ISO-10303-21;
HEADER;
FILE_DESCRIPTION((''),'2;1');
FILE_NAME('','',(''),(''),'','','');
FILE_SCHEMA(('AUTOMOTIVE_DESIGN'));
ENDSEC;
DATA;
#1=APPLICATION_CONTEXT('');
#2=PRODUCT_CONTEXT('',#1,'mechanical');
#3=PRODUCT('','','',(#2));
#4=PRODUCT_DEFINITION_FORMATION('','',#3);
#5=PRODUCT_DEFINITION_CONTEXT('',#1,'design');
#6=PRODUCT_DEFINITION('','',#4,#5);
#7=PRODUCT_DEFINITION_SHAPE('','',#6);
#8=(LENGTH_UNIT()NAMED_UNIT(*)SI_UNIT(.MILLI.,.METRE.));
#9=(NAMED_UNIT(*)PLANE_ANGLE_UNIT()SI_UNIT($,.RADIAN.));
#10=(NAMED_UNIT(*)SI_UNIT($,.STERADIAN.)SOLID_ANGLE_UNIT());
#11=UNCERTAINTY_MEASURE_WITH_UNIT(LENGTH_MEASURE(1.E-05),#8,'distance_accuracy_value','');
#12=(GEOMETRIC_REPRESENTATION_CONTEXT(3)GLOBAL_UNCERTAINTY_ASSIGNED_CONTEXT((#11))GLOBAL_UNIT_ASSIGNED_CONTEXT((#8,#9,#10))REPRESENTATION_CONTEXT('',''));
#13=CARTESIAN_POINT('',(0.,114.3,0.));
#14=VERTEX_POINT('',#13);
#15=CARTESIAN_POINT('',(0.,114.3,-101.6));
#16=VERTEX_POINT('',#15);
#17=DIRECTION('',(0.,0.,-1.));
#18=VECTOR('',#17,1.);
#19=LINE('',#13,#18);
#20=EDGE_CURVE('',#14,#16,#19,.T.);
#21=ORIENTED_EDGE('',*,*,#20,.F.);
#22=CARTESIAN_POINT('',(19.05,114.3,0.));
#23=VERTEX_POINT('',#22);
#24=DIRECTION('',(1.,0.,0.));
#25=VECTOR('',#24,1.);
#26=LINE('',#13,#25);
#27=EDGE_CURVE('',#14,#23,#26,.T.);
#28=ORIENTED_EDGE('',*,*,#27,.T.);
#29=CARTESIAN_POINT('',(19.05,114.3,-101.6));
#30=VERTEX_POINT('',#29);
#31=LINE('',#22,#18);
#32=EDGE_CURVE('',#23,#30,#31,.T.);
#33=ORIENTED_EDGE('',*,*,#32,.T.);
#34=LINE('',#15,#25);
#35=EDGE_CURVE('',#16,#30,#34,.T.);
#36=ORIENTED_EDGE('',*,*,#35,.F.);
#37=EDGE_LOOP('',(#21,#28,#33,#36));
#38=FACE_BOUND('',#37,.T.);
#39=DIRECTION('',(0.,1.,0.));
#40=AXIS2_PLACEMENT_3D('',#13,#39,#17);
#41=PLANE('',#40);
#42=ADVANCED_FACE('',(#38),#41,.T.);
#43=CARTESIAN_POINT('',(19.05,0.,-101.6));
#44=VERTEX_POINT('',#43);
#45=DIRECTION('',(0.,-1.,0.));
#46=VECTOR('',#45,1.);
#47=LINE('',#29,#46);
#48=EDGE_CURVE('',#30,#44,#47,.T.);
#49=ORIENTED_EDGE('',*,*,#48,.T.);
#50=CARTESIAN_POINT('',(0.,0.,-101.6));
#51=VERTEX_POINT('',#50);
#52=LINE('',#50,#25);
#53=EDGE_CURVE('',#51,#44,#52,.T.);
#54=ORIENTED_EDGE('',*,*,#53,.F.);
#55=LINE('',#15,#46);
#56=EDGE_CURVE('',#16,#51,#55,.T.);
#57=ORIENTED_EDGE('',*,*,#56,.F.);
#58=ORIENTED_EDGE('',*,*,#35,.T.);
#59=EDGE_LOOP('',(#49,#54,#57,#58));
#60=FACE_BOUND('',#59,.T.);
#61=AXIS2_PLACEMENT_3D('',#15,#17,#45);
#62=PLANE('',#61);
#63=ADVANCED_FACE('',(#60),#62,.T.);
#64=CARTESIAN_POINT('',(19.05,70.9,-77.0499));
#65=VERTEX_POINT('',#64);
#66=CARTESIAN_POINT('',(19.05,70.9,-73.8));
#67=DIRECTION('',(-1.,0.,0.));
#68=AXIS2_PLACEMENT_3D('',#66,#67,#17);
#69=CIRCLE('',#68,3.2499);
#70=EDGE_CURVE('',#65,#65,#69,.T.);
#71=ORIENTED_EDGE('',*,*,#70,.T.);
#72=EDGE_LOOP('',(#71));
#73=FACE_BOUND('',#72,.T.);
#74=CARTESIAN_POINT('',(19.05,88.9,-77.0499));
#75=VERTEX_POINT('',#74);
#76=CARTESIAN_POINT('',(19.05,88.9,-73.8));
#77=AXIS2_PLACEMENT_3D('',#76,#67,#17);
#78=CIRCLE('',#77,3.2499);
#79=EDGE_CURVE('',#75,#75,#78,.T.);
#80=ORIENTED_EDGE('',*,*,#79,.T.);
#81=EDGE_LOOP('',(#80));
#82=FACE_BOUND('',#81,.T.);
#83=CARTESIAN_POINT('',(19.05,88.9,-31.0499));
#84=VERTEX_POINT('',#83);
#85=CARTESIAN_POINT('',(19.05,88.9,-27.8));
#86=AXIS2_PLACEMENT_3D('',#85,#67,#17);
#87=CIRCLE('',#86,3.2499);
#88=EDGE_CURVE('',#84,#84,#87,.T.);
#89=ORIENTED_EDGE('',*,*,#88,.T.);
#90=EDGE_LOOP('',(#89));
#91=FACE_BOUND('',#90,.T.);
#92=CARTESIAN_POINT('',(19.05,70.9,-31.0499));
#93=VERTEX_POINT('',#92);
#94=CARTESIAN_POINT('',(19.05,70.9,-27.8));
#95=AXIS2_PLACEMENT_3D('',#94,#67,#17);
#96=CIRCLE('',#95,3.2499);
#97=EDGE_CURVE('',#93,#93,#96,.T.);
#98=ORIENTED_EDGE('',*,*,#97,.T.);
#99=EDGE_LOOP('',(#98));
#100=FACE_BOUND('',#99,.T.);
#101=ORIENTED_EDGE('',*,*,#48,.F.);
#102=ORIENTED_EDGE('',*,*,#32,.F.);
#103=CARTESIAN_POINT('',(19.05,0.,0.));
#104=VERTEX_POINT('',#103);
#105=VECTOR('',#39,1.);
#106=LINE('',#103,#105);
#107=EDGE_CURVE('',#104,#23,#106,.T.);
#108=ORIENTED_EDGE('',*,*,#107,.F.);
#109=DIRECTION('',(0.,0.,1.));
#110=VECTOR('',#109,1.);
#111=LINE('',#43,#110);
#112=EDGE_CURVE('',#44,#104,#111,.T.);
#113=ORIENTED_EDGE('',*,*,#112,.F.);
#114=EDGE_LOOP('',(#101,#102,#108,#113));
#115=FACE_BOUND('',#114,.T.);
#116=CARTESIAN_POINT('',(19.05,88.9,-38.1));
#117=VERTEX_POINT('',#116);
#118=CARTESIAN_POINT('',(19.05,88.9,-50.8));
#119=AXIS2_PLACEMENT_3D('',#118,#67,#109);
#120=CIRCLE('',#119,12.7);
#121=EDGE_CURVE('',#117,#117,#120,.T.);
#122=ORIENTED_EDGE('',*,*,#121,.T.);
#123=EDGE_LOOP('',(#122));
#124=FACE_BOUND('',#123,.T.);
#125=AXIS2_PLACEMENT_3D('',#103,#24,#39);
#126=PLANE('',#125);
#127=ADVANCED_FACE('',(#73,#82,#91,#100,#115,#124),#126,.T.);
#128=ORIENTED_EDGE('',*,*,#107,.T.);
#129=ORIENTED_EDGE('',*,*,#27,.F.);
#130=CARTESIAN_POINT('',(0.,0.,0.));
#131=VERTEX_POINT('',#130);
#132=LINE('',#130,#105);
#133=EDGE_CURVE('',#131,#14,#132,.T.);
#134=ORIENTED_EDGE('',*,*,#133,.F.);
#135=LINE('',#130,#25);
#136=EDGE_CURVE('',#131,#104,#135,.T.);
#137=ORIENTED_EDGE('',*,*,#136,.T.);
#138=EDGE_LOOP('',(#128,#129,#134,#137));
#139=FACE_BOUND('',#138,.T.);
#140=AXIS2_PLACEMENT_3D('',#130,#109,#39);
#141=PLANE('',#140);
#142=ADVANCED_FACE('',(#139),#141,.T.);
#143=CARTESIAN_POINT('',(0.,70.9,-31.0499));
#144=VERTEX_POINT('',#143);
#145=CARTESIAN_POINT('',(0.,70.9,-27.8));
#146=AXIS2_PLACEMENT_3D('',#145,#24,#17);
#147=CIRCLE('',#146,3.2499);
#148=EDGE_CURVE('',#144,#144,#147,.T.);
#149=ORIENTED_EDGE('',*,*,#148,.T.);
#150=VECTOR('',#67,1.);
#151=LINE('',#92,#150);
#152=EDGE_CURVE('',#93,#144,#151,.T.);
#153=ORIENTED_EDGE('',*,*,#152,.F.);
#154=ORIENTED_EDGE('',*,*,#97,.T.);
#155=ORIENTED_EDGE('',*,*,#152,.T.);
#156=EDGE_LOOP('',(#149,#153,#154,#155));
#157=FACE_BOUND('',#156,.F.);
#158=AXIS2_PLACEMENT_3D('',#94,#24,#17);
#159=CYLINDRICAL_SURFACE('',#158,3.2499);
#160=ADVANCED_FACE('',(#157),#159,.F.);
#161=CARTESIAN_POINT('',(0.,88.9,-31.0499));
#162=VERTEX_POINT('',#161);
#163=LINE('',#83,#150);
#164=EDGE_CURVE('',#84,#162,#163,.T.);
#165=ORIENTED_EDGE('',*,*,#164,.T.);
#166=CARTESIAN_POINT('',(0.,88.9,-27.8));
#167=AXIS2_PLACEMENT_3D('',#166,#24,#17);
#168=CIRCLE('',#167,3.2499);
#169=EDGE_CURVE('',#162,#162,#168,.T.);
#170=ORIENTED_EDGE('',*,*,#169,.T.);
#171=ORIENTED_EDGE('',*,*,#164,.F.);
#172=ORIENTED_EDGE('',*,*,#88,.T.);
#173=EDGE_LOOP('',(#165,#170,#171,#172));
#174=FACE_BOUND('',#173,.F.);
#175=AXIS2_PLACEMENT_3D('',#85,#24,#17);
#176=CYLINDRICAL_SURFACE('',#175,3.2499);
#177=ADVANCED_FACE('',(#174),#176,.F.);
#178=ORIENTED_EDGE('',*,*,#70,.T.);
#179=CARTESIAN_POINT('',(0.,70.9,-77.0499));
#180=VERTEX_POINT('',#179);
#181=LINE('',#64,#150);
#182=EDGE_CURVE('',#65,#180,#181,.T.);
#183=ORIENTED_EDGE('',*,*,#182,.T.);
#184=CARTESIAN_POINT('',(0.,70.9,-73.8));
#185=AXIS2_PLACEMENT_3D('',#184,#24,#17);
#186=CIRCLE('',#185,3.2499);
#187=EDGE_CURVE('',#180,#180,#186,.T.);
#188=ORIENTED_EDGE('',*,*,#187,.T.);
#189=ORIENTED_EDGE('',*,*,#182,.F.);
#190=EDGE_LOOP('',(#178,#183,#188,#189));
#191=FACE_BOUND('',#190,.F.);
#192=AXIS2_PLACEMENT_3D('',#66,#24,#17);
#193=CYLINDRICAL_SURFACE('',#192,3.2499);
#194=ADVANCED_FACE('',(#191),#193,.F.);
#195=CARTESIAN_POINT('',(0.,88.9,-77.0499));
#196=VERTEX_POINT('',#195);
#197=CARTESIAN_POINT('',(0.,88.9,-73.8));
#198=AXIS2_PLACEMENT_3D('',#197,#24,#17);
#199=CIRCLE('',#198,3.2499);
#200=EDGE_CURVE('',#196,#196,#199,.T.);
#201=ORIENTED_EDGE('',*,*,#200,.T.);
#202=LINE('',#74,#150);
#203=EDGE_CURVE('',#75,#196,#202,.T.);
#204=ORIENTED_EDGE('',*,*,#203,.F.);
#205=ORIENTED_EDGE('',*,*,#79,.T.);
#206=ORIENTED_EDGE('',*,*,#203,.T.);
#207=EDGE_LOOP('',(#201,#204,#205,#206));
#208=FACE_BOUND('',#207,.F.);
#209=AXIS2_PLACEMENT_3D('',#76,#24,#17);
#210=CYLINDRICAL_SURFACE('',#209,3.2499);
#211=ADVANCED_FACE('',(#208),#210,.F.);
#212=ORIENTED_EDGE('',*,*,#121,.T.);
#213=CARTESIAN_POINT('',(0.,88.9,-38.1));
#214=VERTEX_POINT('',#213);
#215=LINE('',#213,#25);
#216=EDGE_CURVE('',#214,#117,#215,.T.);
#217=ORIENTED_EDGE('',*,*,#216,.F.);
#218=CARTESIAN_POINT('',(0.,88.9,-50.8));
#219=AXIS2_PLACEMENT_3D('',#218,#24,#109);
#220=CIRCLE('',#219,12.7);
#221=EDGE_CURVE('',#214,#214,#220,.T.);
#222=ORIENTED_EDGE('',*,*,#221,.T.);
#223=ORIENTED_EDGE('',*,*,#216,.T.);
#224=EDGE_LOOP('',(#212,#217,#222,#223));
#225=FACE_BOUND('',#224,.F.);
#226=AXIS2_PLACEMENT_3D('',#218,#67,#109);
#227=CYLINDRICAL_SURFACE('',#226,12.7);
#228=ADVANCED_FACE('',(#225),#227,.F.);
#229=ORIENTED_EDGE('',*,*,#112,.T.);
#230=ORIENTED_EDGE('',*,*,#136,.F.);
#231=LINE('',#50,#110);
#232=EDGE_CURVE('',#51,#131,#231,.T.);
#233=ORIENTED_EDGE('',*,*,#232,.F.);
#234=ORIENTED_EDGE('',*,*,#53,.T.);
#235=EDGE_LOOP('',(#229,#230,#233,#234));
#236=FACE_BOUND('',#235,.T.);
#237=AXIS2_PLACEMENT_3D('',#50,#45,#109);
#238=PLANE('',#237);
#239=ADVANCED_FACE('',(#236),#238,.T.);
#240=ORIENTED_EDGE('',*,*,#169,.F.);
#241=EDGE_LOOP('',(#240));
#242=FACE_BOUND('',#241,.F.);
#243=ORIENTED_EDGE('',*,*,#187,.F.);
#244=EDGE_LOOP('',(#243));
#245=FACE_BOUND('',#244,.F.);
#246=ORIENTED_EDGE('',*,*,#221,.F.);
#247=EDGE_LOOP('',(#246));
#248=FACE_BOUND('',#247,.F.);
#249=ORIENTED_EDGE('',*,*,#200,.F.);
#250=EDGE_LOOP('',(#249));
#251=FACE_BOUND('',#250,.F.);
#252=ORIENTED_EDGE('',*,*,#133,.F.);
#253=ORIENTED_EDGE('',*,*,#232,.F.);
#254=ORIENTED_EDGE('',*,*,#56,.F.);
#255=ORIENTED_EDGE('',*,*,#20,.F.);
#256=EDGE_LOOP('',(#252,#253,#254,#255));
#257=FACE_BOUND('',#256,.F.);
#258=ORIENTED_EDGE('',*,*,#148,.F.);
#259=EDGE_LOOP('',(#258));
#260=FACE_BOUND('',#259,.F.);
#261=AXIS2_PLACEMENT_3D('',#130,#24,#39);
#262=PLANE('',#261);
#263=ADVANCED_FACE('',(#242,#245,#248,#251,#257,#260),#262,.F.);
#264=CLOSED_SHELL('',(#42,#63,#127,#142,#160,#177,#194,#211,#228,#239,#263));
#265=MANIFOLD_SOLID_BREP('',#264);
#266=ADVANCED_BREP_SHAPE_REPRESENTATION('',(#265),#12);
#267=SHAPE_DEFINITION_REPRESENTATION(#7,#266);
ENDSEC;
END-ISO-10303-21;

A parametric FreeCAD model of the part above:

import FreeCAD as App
import Part
import Sketcher
Q = App.Units.Quantity


def add_polygon(sketch, points):
    """Adds a closed chain of lines whose ends are joined by coincident constraints."""
    first, n = sketch.GeometryCount, len(points)
    for a, b in zip(points, points[1:] + points[:1]):
        sketch.addGeometry(Part.LineSegment(App.Vector(*a, 0), App.Vector(*b, 0)), False)
    for i in range(n):
        sketch.addConstraint(Sketcher.Constraint("Coincident", first + i, 2, first + (i + 1) % n, 1))

doc = App.newDocument("Part")
body = doc.addObject("PartDesign::Body", "Body")

# Sketch on YZ plane
sketch1 = doc.addObject("Sketcher::SketchObject", "Sketch")
body.addObject(sketch1)
sketch1.AttachmentSupport = (doc.YZ_Plane, [""])
sketch1.MapMode = "FlatFace"
add_polygon(sketch1, [(114, 0), (0, 0), (0, -102), (114, -102)])  # lines 0-3
sketch1.addConstraint([
    Sketcher.Constraint("Horizontal", 0),
    Sketcher.Constraint("Vertical", 1),
    Sketcher.Constraint("Horizontal", 2),
    Sketcher.Constraint("Vertical", 3),
    Sketcher.Constraint("Coincident", 0, 2, -1, 1),
    Sketcher.Constraint("DistanceY", 1, 2, 1, 1, Q("4 in")),
    Sketcher.Constraint("DistanceX", 0, 2, 0, 1, Q("4.5 in")),
])
pad1 = doc.addObject("PartDesign::Pad", "Pad")
body.addObject(pad1)
pad1.Profile = sketch1
pad1.Length = Q("0.75 in")

# Sketch on YZ plane
sketch2 = doc.addObject("Sketcher::SketchObject", "Sketch001")
body.addObject(sketch2)
sketch2.AttachmentSupport = (doc.YZ_Plane, [""])
sketch2.MapMode = "FlatFace"
sketch2.AttachmentOffset = App.Placement(App.Vector(0, 0, 0.75 * 25.4), App.Rotation())
sketch2.addGeometry([
    Part.Circle(App.Vector(88.9, -27.8, 0), App.Vector(0, 0, 1), 3.2),
    Part.Circle(App.Vector(88.9, -73.8, 0), App.Vector(0, 0, 1), 3.2),
    Part.Circle(App.Vector(70.9, -27.8, 0), App.Vector(0, 0, 1), 3.2),
    Part.Circle(App.Vector(70.9, -73.8, 0), App.Vector(0, 0, 1), 3.2),
], False)
sketch2.addConstraint([
    Sketcher.Constraint("Equal", 0, 1),
    Sketcher.Constraint("Equal", 1, 2),
    Sketcher.Constraint("Equal", 2, 3),
    Sketcher.Constraint("Horizontal", 0, 3, 2, 3),
    Sketcher.Constraint("Horizontal", 1, 3, 3, 3),
    Sketcher.Constraint("Vertical", 0, 3, 1, 3),
    Sketcher.Constraint("Vertical", 2, 3, 3, 3),
    Sketcher.Constraint("Diameter", 0, Q("0.2559 in")),
    Sketcher.Constraint("DistanceX", -1, 1, 0, 3, Q("3.5 in")),
    Sketcher.Constraint("DistanceY", 0, 3, -1, 1, Q("1.0945 in")),
    Sketcher.Constraint("DistanceY", 1, 3, 0, 3, 46.0),
    Sketcher.Constraint("DistanceX", 2, 3, 0, 3, 18.0),
])
pocket1 = doc.addObject("PartDesign::Pocket", "Pocket")
body.addObject(pocket1)
pocket1.Profile = sketch2
pocket1.Length = Q("0.75 in")

# Sketch on YZ plane
sketch3 = doc.addObject("Sketcher::SketchObject", "Sketch002")
body.addObject(sketch3)
sketch3.AttachmentSupport = (doc.YZ_Plane, [""])
sketch3.MapMode = "FlatFace"
sketch3.addGeometry(Part.Circle(App.Vector(89, -51, 0), App.Vector(0, 0, 1), 13), False)
sketch3.addConstraint([
    Sketcher.Constraint("Diameter", 0, Q("1 in")),
    Sketcher.Constraint("DistanceY", 0, 3, -1, 1, Q("2 in")),
    Sketcher.Constraint("DistanceX", -1, 1, 0, 3, Q("3.5 in")),
])
pocket2 = doc.addObject("PartDesign::Pocket", "Pocket001")
body.addObject(pocket2)
pocket2.Profile = sketch3
pocket2.Length = Q("0.75 in")
pocket2.Reversed = True

doc.recompute()
